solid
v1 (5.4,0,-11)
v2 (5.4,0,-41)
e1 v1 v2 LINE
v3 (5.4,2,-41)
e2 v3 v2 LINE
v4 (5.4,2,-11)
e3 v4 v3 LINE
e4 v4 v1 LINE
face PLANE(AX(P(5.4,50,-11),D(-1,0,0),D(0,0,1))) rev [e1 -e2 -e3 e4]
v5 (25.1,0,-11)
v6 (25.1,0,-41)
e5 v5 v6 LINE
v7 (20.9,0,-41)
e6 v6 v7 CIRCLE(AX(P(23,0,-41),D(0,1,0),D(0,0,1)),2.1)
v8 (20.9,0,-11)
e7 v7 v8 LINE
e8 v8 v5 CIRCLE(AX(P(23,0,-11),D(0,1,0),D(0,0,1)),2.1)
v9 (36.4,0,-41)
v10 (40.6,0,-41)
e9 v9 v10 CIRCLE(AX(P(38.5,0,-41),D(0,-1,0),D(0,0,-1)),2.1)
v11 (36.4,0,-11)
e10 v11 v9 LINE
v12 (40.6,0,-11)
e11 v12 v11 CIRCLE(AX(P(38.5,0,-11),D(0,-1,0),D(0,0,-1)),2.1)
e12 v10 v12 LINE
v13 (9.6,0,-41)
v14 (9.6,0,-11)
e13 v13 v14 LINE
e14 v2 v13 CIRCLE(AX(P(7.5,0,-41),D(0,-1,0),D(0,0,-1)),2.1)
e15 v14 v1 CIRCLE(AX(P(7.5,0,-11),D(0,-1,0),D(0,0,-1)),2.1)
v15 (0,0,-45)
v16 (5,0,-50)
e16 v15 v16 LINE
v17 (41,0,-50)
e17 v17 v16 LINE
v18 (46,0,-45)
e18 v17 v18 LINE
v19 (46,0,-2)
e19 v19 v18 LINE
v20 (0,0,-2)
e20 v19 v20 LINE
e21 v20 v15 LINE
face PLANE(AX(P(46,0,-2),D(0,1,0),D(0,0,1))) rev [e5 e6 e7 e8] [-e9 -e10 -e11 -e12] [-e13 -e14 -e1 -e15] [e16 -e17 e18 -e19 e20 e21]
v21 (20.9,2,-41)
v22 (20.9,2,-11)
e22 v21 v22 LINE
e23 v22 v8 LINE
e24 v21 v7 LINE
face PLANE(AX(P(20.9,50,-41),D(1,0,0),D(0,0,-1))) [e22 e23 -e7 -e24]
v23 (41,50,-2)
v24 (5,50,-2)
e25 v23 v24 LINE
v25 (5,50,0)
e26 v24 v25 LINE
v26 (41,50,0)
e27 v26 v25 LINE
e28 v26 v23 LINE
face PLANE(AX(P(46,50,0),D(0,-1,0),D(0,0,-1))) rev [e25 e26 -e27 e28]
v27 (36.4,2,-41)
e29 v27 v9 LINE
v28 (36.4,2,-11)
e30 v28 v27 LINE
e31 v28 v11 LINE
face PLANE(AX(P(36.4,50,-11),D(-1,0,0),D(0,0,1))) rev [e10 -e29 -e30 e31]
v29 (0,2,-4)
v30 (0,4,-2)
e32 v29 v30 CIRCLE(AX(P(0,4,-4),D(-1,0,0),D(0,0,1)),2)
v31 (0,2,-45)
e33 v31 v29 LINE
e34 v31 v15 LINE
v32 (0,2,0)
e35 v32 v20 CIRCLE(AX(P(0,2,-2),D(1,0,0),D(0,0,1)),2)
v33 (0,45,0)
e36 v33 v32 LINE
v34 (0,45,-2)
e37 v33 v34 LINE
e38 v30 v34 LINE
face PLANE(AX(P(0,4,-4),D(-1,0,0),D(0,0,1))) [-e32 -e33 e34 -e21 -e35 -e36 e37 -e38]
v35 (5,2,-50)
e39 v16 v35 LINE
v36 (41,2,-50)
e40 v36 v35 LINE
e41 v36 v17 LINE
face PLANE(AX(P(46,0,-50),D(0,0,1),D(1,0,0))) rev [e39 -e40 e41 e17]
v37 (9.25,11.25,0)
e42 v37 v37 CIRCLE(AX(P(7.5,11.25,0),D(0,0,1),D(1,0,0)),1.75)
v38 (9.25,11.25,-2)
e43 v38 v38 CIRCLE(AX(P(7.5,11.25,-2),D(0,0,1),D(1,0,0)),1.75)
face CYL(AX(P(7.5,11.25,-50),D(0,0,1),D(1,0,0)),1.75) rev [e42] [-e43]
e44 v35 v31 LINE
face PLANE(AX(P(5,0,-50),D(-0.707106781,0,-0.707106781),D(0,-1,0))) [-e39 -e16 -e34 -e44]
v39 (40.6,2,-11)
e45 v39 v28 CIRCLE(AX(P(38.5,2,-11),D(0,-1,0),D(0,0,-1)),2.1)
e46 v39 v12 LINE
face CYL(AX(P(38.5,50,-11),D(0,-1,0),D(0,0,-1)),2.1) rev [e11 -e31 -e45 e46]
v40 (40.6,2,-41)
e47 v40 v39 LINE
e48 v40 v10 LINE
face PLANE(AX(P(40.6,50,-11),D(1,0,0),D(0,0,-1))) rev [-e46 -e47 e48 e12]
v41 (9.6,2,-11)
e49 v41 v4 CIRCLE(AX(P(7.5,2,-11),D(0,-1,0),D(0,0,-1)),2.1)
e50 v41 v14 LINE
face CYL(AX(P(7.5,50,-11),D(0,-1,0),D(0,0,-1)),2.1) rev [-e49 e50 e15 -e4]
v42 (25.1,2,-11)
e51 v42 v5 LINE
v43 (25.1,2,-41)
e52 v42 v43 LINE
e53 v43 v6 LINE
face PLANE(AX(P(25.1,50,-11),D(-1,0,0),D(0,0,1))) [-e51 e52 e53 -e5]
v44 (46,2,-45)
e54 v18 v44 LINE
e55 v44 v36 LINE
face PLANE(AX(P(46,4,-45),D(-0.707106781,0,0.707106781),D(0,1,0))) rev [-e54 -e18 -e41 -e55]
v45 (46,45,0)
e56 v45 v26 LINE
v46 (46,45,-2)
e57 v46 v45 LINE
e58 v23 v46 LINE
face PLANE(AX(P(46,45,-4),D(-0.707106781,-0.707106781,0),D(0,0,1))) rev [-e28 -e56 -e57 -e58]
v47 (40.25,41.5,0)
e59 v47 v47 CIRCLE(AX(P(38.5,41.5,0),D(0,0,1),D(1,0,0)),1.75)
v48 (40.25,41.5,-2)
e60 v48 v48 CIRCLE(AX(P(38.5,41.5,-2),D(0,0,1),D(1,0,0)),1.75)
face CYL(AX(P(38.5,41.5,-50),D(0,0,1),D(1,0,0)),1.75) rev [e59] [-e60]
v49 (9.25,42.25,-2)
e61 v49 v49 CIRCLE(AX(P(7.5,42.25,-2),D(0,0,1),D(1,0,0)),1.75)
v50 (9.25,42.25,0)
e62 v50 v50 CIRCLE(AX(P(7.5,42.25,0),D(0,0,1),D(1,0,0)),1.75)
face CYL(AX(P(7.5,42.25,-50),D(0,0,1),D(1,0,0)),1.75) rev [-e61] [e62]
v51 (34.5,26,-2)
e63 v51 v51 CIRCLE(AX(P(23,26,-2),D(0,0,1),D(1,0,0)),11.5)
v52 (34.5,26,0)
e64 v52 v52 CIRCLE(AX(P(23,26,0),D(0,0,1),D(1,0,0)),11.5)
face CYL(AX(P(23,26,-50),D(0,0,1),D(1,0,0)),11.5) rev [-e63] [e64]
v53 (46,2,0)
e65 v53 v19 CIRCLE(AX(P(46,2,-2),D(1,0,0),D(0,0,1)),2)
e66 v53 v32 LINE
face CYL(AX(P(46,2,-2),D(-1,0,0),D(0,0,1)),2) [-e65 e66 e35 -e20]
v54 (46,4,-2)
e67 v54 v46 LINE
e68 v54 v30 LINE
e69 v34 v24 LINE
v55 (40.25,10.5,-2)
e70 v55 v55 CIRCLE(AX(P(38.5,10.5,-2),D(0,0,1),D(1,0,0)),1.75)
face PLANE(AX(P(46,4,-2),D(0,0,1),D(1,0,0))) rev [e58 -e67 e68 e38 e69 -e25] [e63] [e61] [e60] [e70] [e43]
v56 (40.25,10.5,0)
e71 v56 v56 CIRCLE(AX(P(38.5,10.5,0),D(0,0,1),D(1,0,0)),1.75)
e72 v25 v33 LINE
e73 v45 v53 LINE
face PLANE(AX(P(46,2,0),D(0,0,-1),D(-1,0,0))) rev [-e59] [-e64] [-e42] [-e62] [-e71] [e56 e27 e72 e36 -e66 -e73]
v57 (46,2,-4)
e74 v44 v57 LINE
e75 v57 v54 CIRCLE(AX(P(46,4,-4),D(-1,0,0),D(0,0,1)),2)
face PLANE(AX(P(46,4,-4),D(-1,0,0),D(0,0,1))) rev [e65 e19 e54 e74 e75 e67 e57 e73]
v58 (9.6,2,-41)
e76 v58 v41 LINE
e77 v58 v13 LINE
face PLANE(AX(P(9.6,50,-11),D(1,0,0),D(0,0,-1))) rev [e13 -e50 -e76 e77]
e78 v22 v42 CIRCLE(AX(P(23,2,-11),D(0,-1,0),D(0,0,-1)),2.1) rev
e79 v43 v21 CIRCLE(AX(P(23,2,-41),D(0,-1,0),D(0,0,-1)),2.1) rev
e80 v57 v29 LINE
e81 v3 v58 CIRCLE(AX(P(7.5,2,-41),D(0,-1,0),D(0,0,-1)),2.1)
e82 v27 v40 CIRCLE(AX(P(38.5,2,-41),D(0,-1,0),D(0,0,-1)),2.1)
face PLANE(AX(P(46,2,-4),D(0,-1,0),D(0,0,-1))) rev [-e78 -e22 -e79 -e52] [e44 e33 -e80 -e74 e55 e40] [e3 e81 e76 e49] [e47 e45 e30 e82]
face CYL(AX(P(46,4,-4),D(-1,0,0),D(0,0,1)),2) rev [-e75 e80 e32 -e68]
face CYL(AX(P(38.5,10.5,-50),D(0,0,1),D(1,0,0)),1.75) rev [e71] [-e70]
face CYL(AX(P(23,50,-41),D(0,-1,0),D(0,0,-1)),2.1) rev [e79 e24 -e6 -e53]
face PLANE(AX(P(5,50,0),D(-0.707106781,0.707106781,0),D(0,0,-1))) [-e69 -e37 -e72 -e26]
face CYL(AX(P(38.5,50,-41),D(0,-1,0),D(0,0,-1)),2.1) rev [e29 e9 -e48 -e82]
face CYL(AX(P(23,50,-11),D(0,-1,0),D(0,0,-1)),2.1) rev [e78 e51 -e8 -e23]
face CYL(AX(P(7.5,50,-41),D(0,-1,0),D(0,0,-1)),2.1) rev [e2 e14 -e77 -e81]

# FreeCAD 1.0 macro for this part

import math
import FreeCAD as App
import Part
import Sketcher
from FreeCAD import Vector


def edges_at(feature, points):
    """Names of the edges that pass closest to the given points."""
    edges = feature.Shape.Edges
    near = lambda p: min(range(len(edges)), key=lambda i: edges[i].distToShape(Part.Vertex(*p))[0])
    return sorted({f"Edge{near(p) + 1}" for p in points})

doc = App.newDocument("Part")
body = doc.addObject("PartDesign::Body", "Body")

# Sketch on YZ plane
sketch1 = body.newObject("Sketcher::SketchObject", "Sketch")
sketch1.AttachmentSupport = (doc.getObject("YZ_Plane"), [""])
sketch1.MapMode = "FlatFace"
sketch1.addGeometry([
    Part.LineSegment(Vector(0, -2, 0), Vector(0, -50, 0)),  # 0
    Part.LineSegment(Vector(0, -50, 0), Vector(2, -50, 0)),  # 1
    Part.LineSegment(Vector(2, -50, 0), Vector(2, -4, 0)),  # 2
    Part.ArcOfCircle(Part.Circle(Vector(4, -4, 0), Vector(0, 0, 1), 2), math.radians(90), math.radians(180)),  # 3
    Part.LineSegment(Vector(4, -2, 0), Vector(50, -2, 0)),  # 4
    Part.LineSegment(Vector(50, -2, 0), Vector(50, 0, 0)),  # 5
    Part.LineSegment(Vector(50, 0, 0), Vector(2, 0, 0)),  # 6
    Part.ArcOfCircle(Part.Circle(Vector(2, -2, 0), Vector(0, 0, 1), 2), math.radians(90), math.radians(180)),  # 7
], False)
sketch1.addConstraint([
    Sketcher.Constraint("Coincident", 0, 2, 1, 1),
    Sketcher.Constraint("Coincident", 1, 2, 2, 1),
    Sketcher.Constraint("Tangent", 2, 2, 3, 2),
    Sketcher.Constraint("Tangent", 3, 1, 4, 1),
    Sketcher.Constraint("Coincident", 4, 2, 5, 1),
    Sketcher.Constraint("Coincident", 5, 2, 6, 1),
    Sketcher.Constraint("Tangent", 6, 2, 7, 1),
    Sketcher.Constraint("Tangent", 7, 2, 0, 1),
    Sketcher.Constraint("Vertical", 0),
    Sketcher.Constraint("Horizontal", 1),
    Sketcher.Constraint("Vertical", 2),
    Sketcher.Constraint("Horizontal", 4),
    Sketcher.Constraint("Vertical", 5),
    Sketcher.Constraint("Horizontal", 6),
    Sketcher.Constraint("Equal", 3, 7),
    Sketcher.Constraint("PointOnObject", 0, 2, -2),
    Sketcher.Constraint("PointOnObject", 5, 2, -1),
    Sketcher.Constraint("Horizontal", 7, 3, 3, 1),
    Sketcher.Constraint("Vertical", 7, 3, 1, 2),
    Sketcher.Constraint("Equal", 6, 0),
    Sketcher.Constraint("Radius", 3, 2.0),
    Sketcher.Constraint("DistanceX", 4, 1, 4, 2, 46.0),
])
pad1 = body.newObject("PartDesign::Pad", "Pad")
pad1.Profile = sketch1
pad1.Length = 46

# Sketch on XY plane
sketch2 = body.newObject("Sketcher::SketchObject", "Sketch001")
sketch2.AttachmentSupport = (doc.getObject("XY_Plane"), [""])
sketch2.MapMode = "FlatFace"
sketch2.addGeometry([
    Part.Circle(Vector(23, 26, 0), Vector(0, 0, 1), 11.5),  # 0
    Part.Circle(Vector(7.5, 42.2, 0), Vector(0, 0, 1), 1.8),  # 1
    Part.Circle(Vector(38.5, 41.5, 0), Vector(0, 0, 1), 1.8),  # 2
    Part.Circle(Vector(7.5, 11.2, 0), Vector(0, 0, 1), 1.8),  # 3
    Part.Circle(Vector(38.5, 10.5, 0), Vector(0, 0, 1), 1.8),  # 4
], False)
sketch2.addConstraint([
    Sketcher.Constraint("Equal", 1, 2),
    Sketcher.Constraint("Equal", 2, 3),
    Sketcher.Constraint("Equal", 3, 4),
    Sketcher.Constraint("Vertical", 1, 3, 3, 3),
    Sketcher.Constraint("Vertical", 2, 3, 4, 3),
    Sketcher.Constraint("Diameter", 0, 23.0),
    Sketcher.Constraint("Diameter", 1, 3.5),
    Sketcher.Constraint("DistanceX", -1, 1, 0, 3, 23.0),
    Sketcher.Constraint("DistanceY", -1, 1, 0, 3, 26.0),
    Sketcher.Constraint("DistanceX", 1, 3, 2, 3, 31.0),
    Sketcher.Constraint("DistanceY", 3, 3, 1, 3, 31.0),
    Sketcher.Constraint("DistanceY", 4, 3, 2, 3, 31.0),
    Sketcher.Constraint("DistanceX", -1, 1, 1, 3, 7.5),
    Sketcher.Constraint("DistanceY", -1, 1, 2, 3, 41.5),
    Sketcher.Constraint("DistanceY", -1, 1, 1, 3, 42.25),
])
pocket1 = body.newObject("PartDesign::Pocket", "Pocket")
pocket1.Profile = sketch2
pocket1.Type = "ThroughAll"

# Sketch on XZ plane
sketch3 = body.newObject("Sketcher::SketchObject", "Sketch002")
sketch3.AttachmentSupport = (doc.getObject("XZ_Plane"), [""])
sketch3.MapMode = "FlatFace"
sketch3.addGeometry([
    Part.LineSegment(Vector(5.4, -11, 0), Vector(5.4, -41, 0)),  # 0
    Part.ArcOfCircle(Part.Circle(Vector(7.5, -41, 0), Vector(0, 0, 1), 2.1), math.radians(180), math.radians(360)),  # 1
    Part.LineSegment(Vector(9.6, -41, 0), Vector(9.6, -11, 0)),  # 2
    Part.ArcOfCircle(Part.Circle(Vector(7.5, -11, 0), Vector(0, 0, 1), 2.1), math.radians(0), math.radians(180)),  # 3
    Part.LineSegment(Vector(36.4, -11, 0), Vector(36.4, -41, 0)),  # 4
    Part.ArcOfCircle(Part.Circle(Vector(38.5, -41, 0), Vector(0, 0, 1), 2.1), math.radians(180), math.radians(360)),  # 5
    Part.LineSegment(Vector(40.6, -41, 0), Vector(40.6, -11, 0)),  # 6
    Part.ArcOfCircle(Part.Circle(Vector(38.5, -11, 0), Vector(0, 0, 1), 2.1), math.radians(0), math.radians(180)),  # 7
], False)
sketch3.addConstraint([
    Sketcher.Constraint("Tangent", 0, 2, 1, 1),
    Sketcher.Constraint("Tangent", 1, 2, 2, 1),
    Sketcher.Constraint("Tangent", 2, 2, 3, 1),
    Sketcher.Constraint("Tangent", 3, 2, 0, 1),
    Sketcher.Constraint("Tangent", 4, 2, 5, 1),
    Sketcher.Constraint("Tangent", 5, 2, 6, 1),
    Sketcher.Constraint("Tangent", 6, 2, 7, 1),
    Sketcher.Constraint("Tangent", 7, 2, 4, 1),
    Sketcher.Constraint("Vertical", 0),
    Sketcher.Constraint("Vertical", 2),
    Sketcher.Constraint("Vertical", 4),
    Sketcher.Constraint("Vertical", 6),
    Sketcher.Constraint("Equal", 3, 5),
    Sketcher.Constraint("Horizontal", 1, 3, 5, 3),
    Sketcher.Constraint("Horizontal", 3, 3, 7, 3),
    Sketcher.Constraint("Radius", 1, 2.1),
    Sketcher.Constraint("DistanceY", 0, 2, 0, 1, 30.0),
    Sketcher.Constraint("DistanceY", 1, 3, -1, 1, 41.0),
    Sketcher.Constraint("DistanceX", 1, 3, 5, 3, 31.0),
    Sketcher.Constraint("DistanceX", -1, 1, 1, 3, 7.5),
])
pocket2 = body.newObject("PartDesign::Pocket", "Pocket001")
pocket2.Profile = sketch3
pocket2.Type = "ThroughAll"
doc.recompute()

chamfer = body.newObject("PartDesign::Chamfer", "Chamfer")
chamfer.Base = (pocket2, edges_at(pocket2, [
    (0, 1, -50),
    (46, 50, -1),
    (46, 1, -50),
    (0, 50, -1),
]))
chamfer.Size = 5

# Sketch on XZ plane
sketch4 = body.newObject("Sketcher::SketchObject", "Sketch003")
sketch4.AttachmentSupport = (doc.getObject("XZ_Plane"), [""])
sketch4.MapMode = "FlatFace"
sketch4.addGeometry([
    Part.LineSegment(Vector(20.9, -11, 0), Vector(20.9, -41, 0)),
    Part.ArcOfCircle(Part.Circle(Vector(23, -41, 0), Vector(0, 0, 1), 2.1), math.radians(180), math.radians(360)),
    Part.LineSegment(Vector(25.1, -41, 0), Vector(25.1, -11, 0)),
    Part.ArcOfCircle(Part.Circle(Vector(23, -11, 0), Vector(0, 0, 1), 2.1), math.radians(0), math.radians(180)),
], False)
sketch4.addConstraint([
    Sketcher.Constraint("Tangent", 0, 2, 1, 1),
    Sketcher.Constraint("Tangent", 1, 2, 2, 1),
    Sketcher.Constraint("Tangent", 2, 2, 3, 1),
    Sketcher.Constraint("Tangent", 3, 2, 0, 1),
    Sketcher.Constraint("Vertical", 0),
    Sketcher.Constraint("Vertical", 2),
    Sketcher.Constraint("Radius", 1, 2.1),
    Sketcher.Constraint("DistanceY", 0, 2, 0, 1, 30.0),
    Sketcher.Constraint("DistanceX", -1, 1, 1, 3, 23.0),
    Sketcher.Constraint("DistanceY", 1, 3, -1, 1, 41.0),
])
pocket3 = body.newObject("PartDesign::Pocket", "Pocket002")
pocket3.Profile = sketch4
pocket3.Type = "ThroughAll"

doc.recompute()
